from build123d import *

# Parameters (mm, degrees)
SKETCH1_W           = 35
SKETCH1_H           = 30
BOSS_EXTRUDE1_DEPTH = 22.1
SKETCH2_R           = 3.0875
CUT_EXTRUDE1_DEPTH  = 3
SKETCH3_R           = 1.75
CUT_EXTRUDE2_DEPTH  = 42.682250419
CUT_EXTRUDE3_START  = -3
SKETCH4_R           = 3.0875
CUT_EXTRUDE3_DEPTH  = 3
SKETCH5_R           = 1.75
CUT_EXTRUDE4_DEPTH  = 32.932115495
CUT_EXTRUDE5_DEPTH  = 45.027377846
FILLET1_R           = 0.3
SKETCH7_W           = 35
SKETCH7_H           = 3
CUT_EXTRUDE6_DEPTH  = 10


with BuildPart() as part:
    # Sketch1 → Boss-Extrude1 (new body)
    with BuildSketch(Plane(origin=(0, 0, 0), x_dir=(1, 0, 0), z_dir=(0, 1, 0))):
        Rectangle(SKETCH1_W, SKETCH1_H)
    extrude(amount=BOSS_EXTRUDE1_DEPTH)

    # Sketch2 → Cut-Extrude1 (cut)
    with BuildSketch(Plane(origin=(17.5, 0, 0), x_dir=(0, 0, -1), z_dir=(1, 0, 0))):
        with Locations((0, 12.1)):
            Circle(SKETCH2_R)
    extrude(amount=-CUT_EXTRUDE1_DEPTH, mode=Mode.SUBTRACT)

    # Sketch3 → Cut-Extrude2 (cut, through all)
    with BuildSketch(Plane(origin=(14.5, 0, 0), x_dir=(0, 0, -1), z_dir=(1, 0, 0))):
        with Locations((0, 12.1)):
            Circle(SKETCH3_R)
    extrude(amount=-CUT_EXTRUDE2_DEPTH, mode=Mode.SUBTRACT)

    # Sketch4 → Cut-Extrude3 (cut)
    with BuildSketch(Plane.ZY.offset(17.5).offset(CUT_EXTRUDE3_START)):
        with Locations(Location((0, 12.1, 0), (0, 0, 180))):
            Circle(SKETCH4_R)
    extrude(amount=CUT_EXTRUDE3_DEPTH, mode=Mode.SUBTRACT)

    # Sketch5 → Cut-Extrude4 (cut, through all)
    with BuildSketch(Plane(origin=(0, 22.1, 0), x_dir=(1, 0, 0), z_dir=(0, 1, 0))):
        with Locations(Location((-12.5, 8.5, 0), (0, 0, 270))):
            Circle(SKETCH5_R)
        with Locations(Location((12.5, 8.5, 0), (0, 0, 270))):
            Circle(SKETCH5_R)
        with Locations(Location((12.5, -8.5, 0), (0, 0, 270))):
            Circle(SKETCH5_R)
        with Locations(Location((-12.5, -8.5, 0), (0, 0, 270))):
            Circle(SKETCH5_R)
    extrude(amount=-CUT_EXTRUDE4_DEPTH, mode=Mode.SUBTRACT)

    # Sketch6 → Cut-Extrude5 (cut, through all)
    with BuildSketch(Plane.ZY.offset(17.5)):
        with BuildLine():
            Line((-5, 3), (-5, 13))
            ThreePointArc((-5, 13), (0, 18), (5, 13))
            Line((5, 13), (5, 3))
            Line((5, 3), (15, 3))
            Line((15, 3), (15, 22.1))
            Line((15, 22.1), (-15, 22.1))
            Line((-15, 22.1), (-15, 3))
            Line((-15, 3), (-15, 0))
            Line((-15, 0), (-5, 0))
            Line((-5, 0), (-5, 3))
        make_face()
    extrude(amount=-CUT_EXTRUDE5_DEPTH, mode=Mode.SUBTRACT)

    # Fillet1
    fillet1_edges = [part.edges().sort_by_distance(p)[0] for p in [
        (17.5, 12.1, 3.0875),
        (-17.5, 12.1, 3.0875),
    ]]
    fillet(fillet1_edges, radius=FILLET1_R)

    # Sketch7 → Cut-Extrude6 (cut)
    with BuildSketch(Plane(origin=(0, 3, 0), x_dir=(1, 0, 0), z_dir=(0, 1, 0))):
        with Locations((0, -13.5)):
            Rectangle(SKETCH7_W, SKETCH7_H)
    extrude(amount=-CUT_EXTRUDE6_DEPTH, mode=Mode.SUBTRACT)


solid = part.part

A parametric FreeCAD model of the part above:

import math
import FreeCAD as App
import Part
import Sketcher

V = App.Vector


def edges_at(feature, points):
    """Names of the edges that pass closest to the given points."""
    edges = feature.Shape.Edges
    near = lambda p: min(range(len(edges)), key=lambda i: edges[i].distToShape(Part.Vertex(*p))[0])
    return sorted({f"Edge{near(p) + 1}" for p in points})

doc = App.newDocument("Part")
params = doc.addObject("Spreadsheet::Sheet", "Params")
for row, (alias, value) in enumerate([
    ("sketch1_width", "35 mm"),
    ("sketch1_height", "30 mm"),
    ("pad1_length", "22.1 mm"),
    ("pocket1_length", "3 mm"),
    ("sketch3_diameter", "3.5 mm"),
    ("pocket3_length", "3 mm"),
    ("sketch5_diameter", "3.5 mm"),
    ("sketch6_radius", "5 mm"),
    ("sketch6_width", "10 mm"),
    ("sketch6_width2", "13 mm"),
    ("sketch6_width3", "19.1 mm"),
    ("fillet_radius", "0.3 mm"),
    ("sketch7_width", "35 mm"),
    ("sketch7_height", "3 mm"),
    ("pocket6_length", "10 mm"),
], start=1):
    params.set(f"A{row}", alias)
    params.set(f"B{row}", "=" + value)
    params.setAlias(f"B{row}", alias)

body = doc.addObject("PartDesign::Body", "Body")

# Sketch on XZ plane
sketch1 = body.newObject("Sketcher::SketchObject", "Sketch")
sketch1.AttachmentSupport = (doc.getObject("XZ_Plane"), [""])
sketch1.MapMode = "FlatFace"
sketch1.addGeometry([
    Part.LineSegment(V(-17.5, -15, 0), V(-17.5, 15, 0)),
    Part.LineSegment(V(-17.5, 15, 0), V(17.5, 15, 0)),
    Part.LineSegment(V(17.5, 15, 0), V(17.5, -15, 0)),
    Part.LineSegment(V(17.5, -15, 0), V(-17.5, -15, 0)),
], False)
sketch1.addConstraint([
    Sketcher.Constraint("Coincident", 0, 2, 1, 1),
    Sketcher.Constraint("Coincident", 1, 2, 2, 1),
    Sketcher.Constraint("Coincident", 2, 2, 3, 1),
    Sketcher.Constraint("Coincident", 3, 2, 0, 1),
    Sketcher.Constraint("Vertical", 0),
    Sketcher.Constraint("Horizontal", 1),
    Sketcher.Constraint("Vertical", 2),
    Sketcher.Constraint("Horizontal", 3),
    Sketcher.Constraint("Symmetric", 0, 2, 2, 2, -1, 1),
    Sketcher.Constraint("DistanceX", 1, 1, 1, 2, 35.0),
    Sketcher.Constraint("DistanceY", 0, 1, 0, 2, 30.0),
])
sketch1.setExpression("Constraints[9]", "Params.sketch1_width")
sketch1.setExpression("Constraints[10]", "Params.sketch1_height")
pad1 = body.newObject("PartDesign::Pad", "Pad")
pad1.Profile = sketch1
pad1.setExpression("Length", "Params.pad1_length")
pad1.Reversed = True

# Sketch on YZ plane
sketch2 = body.newObject("Sketcher::SketchObject", "Sketch001")
sketch2.AttachmentSupport = (doc.getObject("YZ_Plane"), [""])
sketch2.MapMode = "FlatFace"
sketch2.AttachmentOffset = App.Placement(V(0, 0, 17.5), App.Rotation())
sketch2.addGeometry(Part.Circle(V(12.1, 0, 0), V(0, 0, 1), 3.0875), False)
sketch2.addConstraint([
    Sketcher.Constraint("PointOnObject", 0, 3, -1),
    Sketcher.Constraint("Diameter", 0, 6.175),
    Sketcher.Constraint("DistanceX", -1, 1, 0, 3, 12.1),
])
pocket1 = body.newObject("PartDesign::Pocket", "Pocket")
pocket1.Profile = sketch2
pocket1.setExpression("Length", "Params.pocket1_length")

# Sketch on YZ plane
sketch3 = body.newObject("Sketcher::SketchObject", "Sketch002")
sketch3.AttachmentSupport = (doc.getObject("YZ_Plane"), [""])
sketch3.MapMode = "FlatFace"
sketch3.AttachmentOffset = App.Placement(V(0, 0, 14.5), App.Rotation())
sketch3.addGeometry(Part.Circle(V(12.1, 0, 0), V(0, 0, 1), 1.75), False)
sketch3.addConstraint([
    Sketcher.Constraint("PointOnObject", 0, 3, -1),
    Sketcher.Constraint("Diameter", 0, 3.5),
    Sketcher.Constraint("DistanceX", -1, 1, 0, 3, 12.1),
])
sketch3.setExpression("Constraints[1]", "Params.sketch3_diameter")
pocket2 = body.newObject("PartDesign::Pocket", "Pocket001")
pocket2.Profile = sketch3
pocket2.Type = "ThroughAll"

# Sketch on YZ plane
sketch4 = body.newObject("Sketcher::SketchObject", "Sketch003")
sketch4.AttachmentSupport = (doc.getObject("YZ_Plane"), [""])
sketch4.MapMode = "FlatFace"
sketch4.AttachmentOffset = App.Placement(V(0, 0, -14.5), App.Rotation())
sketch4.addGeometry(Part.Circle(V(12.1, 0, 0), V(0, 0, 1), 3.0875), False)
sketch4.addConstraint([
    Sketcher.Constraint("PointOnObject", 0, 3, -1),
    Sketcher.Constraint("Diameter", 0, 6.175),
    Sketcher.Constraint("DistanceX", -1, 1, 0, 3, 12.1),
])
pocket3 = body.newObject("PartDesign::Pocket", "Pocket002")
pocket3.Profile = sketch4
pocket3.setExpression("Length", "Params.pocket3_length")

# Sketch on XZ plane
sketch5 = body.newObject("Sketcher::SketchObject", "Sketch004")
sketch5.AttachmentSupport = (doc.getObject("XZ_Plane"), [""])
sketch5.MapMode = "FlatFace"
sketch5.AttachmentOffset = App.Placement(V(0, 0, -22.1), App.Rotation())
sketch5.addGeometry([
    Part.Circle(V(-12.5, -8.5, 0), V(0, 0, 1), 1.75),
    Part.Circle(V(12.5, -8.5, 0), V(0, 0, 1), 1.75),
    Part.Circle(V(12.5, 8.5, 0), V(0, 0, 1), 1.75),
    Part.Circle(V(-12.5, 8.5, 0), V(0, 0, 1), 1.75),
], False)
sketch5.addConstraint([
    Sketcher.Constraint("Equal", 0, 1),
    Sketcher.Constraint("Equal", 1, 2),
    Sketcher.Constraint("Equal", 2, 3),
    Sketcher.Constraint("Symmetric", 0, 3, 2, 3, -1, 1),
    Sketcher.Constraint("Symmetric", 1, 3, 3, 3, -1, 1),
    Sketcher.Constraint("Symmetric", 0, 3, 1, 3, -2),
    Sketcher.Constraint("Diameter", 0, 3.5),
    Sketcher.Constraint("DistanceX", 0, 3, 1, 3, 25.0),
    Sketcher.Constraint("DistanceY", 1, 3, 2, 3, 17.0),
])
sketch5.setExpression("Constraints[6]", "Params.sketch5_diameter")
pocket4 = body.newObject("PartDesign::Pocket", "Pocket003")
pocket4.Profile = sketch5
pocket4.Type = "ThroughAll"
pocket4.Reversed = True

# Sketch on YZ plane
sketch6 = body.newObject("Sketcher::SketchObject", "Sketch005")
sketch6.AttachmentSupport = (doc.getObject("YZ_Plane"), [""])
sketch6.MapMode = "FlatFace"
sketch6.AttachmentOffset = App.Placement(V(0, 0, -17.5), App.Rotation())
sketch6.addGeometry([
    Part.ArcOfCircle(Part.Circle(V(13, 0, 0), V(0, 0, 1), 5), math.radians(-90), math.radians(90)),  # 0
    Part.LineSegment(V(13, 5, 0), V(3, 5, 0)),  # 1
    Part.LineSegment(V(3, 5, 0), V(3, 15, 0)),  # 2
    Part.LineSegment(V(3, 15, 0), V(22.1, 15, 0)),  # 3
    Part.LineSegment(V(22.1, 15, 0), V(22.1, -15, 0)),  # 4
    Part.LineSegment(V(22.1, -15, 0), V(0, -15, 0)),  # 5
    Part.LineSegment(V(0, -15, 0), V(0, -5, 0)),  # 6
    Part.LineSegment(V(0, -5, 0), V(13, -5, 0)),  # 7
], False)
sketch6.addConstraint([
    Sketcher.Constraint("Tangent", 0, 2, 1, 1),
    Sketcher.Constraint("Coincident", 1, 2, 2, 1),
    Sketcher.Constraint("Coincident", 2, 2, 3, 1),
    Sketcher.Constraint("Coincident", 3, 2, 4, 1),
    Sketcher.Constraint("Coincident", 4, 2, 5, 1),
    Sketcher.Constraint("Coincident", 5, 2, 6, 1),
    Sketcher.Constraint("Coincident", 6, 2, 7, 1),
    Sketcher.Constraint("Tangent", 7, 2, 0, 1),
    Sketcher.Constraint("Horizontal", 1),
    Sketcher.Constraint("Vertical", 2),
    Sketcher.Constraint("Horizontal", 3),
    Sketcher.Constraint("Vertical", 4),
    Sketcher.Constraint("Horizontal", 5),
    Sketcher.Constraint("Vertical", 6),
    Sketcher.Constraint("Horizontal", 7),
    Sketcher.Constraint("PointOnObject", 0, 3, -1),
    Sketcher.Constraint("PointOnObject", 5, 2, -2),
    Sketcher.Constraint("Equal", 1, 2),
    Sketcher.Constraint("Equal", 2, 6),
    Sketcher.Constraint("Radius", 0, 5.0),
    Sketcher.Constraint("DistanceX", 1, 2, 1, 1, 10.0),
    Sketcher.Constraint("DistanceX", 7, 1, 7, 2, 13.0),
    Sketcher.Constraint("DistanceX", 3, 1, 3, 2, 19.1),
])
sketch6.setExpression("Constraints[19]", "Params.sketch6_radius")
sketch6.setExpression("Constraints[20]", "Params.sketch6_width")
sketch6.setExpression("Constraints[21]", "Params.sketch6_width2")
sketch6.setExpression("Constraints[22]", "Params.sketch6_width3")
pocket5 = body.newObject("PartDesign::Pocket", "Pocket004")
pocket5.Profile = sketch6
pocket5.Type = "ThroughAll"
pocket5.Reversed = True
doc.recompute()

fillet = body.newObject("PartDesign::Fillet", "Fillet")
fillet.Base = (pocket5, edges_at(pocket5, [(17.5, 12.1, 3.087), (-17.5, 12.1, 3.087)]))
fillet.setExpression("Radius", "Params.fillet_radius")

# Sketch on XZ plane
sketch7 = body.newObject("Sketcher::SketchObject", "Sketch006")
sketch7.AttachmentSupport = (doc.getObject("XZ_Plane"), [""])
sketch7.MapMode = "FlatFace"
sketch7.AttachmentOffset = App.Placement(V(0, 0, -3), App.Rotation())
sketch7.addGeometry([
    Part.LineSegment(V(-17.5, 12, 0), V(-17.5, 15, 0)),
    Part.LineSegment(V(-17.5, 15, 0), V(17.5, 15, 0)),
    Part.LineSegment(V(17.5, 15, 0), V(17.5, 12, 0)),
    Part.LineSegment(V(17.5, 12, 0), V(-17.5, 12, 0)),
], False)
sketch7.addConstraint([
    Sketcher.Constraint("Coincident", 0, 2, 1, 1),
    Sketcher.Constraint("Coincident", 1, 2, 2, 1),
    Sketcher.Constraint("Coincident", 2, 2, 3, 1),
    Sketcher.Constraint("Coincident", 3, 2, 0, 1),
    Sketcher.Constraint("Vertical", 0),
    Sketcher.Constraint("Horizontal", 1),
    Sketcher.Constraint("Vertical", 2),
    Sketcher.Constraint("Horizontal", 3),
    Sketcher.Constraint("DistanceX", 1, 1, 1, 2, 35.0),
    Sketcher.Constraint("DistanceY", 0, 1, 0, 2, 3.0),
    Sketcher.Constraint("DistanceY", -1, 1, 0, 2, 15.0),
    Sketcher.Constraint("DistanceX", 0, 2, -1, 1, 17.5),
])
sketch7.setExpression("Constraints[8]", "Params.sketch7_width")
sketch7.setExpression("Constraints[9]", "Params.sketch7_height")
pocket6 = body.newObject("PartDesign::Pocket", "Pocket005")
pocket6.Profile = sketch7
pocket6.setExpression("Length", "Params.pocket6_length")
pocket6.Reversed = True

doc.recompute()
